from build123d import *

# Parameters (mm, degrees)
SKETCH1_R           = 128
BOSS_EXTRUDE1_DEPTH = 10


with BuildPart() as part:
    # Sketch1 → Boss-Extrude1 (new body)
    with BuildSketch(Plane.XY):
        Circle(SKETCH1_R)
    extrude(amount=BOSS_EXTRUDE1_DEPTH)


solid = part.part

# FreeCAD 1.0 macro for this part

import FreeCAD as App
import Part
import Sketcher
from FreeCAD import Vector
Q = App.Units.Quantity

doc = App.newDocument("Part")
params = doc.addObject("Spreadsheet::Sheet", "Params")
for row, (alias, value) in enumerate([
    ("sketch1_diameter", "256 mm"),
    ("pad1_length", "10 mm"),
], start=1):
    params.set(f"A{row}", alias)
    params.set(f"B{row}", "=" + value)
    params.setAlias(f"B{row}", alias)

body = doc.addObject("PartDesign::Body", "Body")

sketch1 = body.newObject("Sketcher::SketchObject", "Sketch")
sketch1.AttachmentSupport = (doc.getObject("XY_Plane"), [""])
sketch1.MapMode = "FlatFace"
sketch1.addGeometry(Part.Circle(Vector(0, 0, 0), Vector(0, 0, 1), 128), False)
sketch1.addConstraint(Sketcher.Constraint("Coincident", 0, 3, -1, 1))
sketch1.addConstraint(Sketcher.Constraint("Diameter", 0, Q("256 mm")))
sketch1.setExpression("Constraints[1]", "Params.sketch1_diameter")
pad1 = body.newObject("PartDesign::Pad", "Pad")
pad1.Profile = sketch1
pad1.setExpression("Length", "Params.pad1_length")

doc.recompute()
